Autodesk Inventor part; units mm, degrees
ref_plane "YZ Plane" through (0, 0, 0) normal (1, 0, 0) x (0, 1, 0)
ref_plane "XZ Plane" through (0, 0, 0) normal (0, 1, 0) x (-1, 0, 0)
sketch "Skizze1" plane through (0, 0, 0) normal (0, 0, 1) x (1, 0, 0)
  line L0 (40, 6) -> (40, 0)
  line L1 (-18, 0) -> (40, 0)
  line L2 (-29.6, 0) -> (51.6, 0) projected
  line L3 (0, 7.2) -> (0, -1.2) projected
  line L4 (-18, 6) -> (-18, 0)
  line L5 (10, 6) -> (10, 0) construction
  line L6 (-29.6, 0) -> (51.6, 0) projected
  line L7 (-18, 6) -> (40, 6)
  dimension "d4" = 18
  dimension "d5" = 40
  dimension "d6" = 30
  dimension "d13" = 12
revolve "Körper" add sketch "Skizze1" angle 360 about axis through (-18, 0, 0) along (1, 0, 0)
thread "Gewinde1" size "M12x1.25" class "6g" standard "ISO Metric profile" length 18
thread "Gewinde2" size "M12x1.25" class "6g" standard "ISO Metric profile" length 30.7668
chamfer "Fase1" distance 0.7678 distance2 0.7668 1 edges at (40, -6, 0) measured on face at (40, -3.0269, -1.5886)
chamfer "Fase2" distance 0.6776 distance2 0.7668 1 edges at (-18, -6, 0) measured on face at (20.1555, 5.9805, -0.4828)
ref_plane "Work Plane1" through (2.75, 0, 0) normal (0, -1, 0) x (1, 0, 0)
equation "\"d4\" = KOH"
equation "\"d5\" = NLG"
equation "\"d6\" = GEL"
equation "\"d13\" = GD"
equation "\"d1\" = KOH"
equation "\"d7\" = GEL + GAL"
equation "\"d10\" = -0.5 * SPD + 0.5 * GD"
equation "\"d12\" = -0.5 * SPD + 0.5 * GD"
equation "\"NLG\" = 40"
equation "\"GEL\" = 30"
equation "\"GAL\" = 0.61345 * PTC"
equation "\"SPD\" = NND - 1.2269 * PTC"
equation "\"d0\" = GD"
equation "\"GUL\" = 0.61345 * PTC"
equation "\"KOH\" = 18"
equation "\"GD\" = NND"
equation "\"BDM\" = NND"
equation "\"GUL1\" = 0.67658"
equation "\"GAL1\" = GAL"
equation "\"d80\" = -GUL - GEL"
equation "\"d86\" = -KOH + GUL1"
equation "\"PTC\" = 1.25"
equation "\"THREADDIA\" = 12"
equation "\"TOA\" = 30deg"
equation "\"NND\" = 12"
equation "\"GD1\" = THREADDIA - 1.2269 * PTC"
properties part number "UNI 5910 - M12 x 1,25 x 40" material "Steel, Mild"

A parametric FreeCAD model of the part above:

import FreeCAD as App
import Part
import Sketcher
from FreeCAD import Vector


def edges_at(feature, points):
    """Names of the edges that pass closest to the given points."""
    edges = feature.Shape.Edges
    near = lambda p: min(range(len(edges)), key=lambda i: edges[i].distToShape(Part.Vertex(*p))[0])
    return sorted({f"Edge{near(p) + 1}" for p in points})


def add_polygon(sketch, points):
    """Adds a closed chain of lines whose ends are joined by coincident constraints."""
    first, n = sketch.GeometryCount, len(points)
    for a, b in zip(points, points[1:] + points[:1]):
        sketch.addGeometry(Part.LineSegment(App.Vector(*a, 0), App.Vector(*b, 0)), False)
    for i in range(n):
        sketch.addConstraint(Sketcher.Constraint("Coincident", first + i, 2, first + (i + 1) % n, 1))

doc = App.newDocument("Part")
body = doc.addObject("PartDesign::Body", "Body")

# Sketch on XY plane
sketch1 = body.newObject("Sketcher::SketchObject", "Sketch")
sketch1.AttachmentSupport = (doc.getObject("XY_Plane"), [""])
sketch1.MapMode = "FlatFace"
add_polygon(sketch1, [(40, 0), (40, 6), (-18, 6), (-18, 0)])  # lines 0-3
sketch1.addConstraint(Sketcher.Constraint("Vertical", 0))
sketch1.addConstraint(Sketcher.Constraint("Horizontal", 1))
sketch1.addConstraint(Sketcher.Constraint("Vertical", 2))
sketch1.addConstraint(Sketcher.Constraint("Horizontal", 3))
sketch1.addConstraint(Sketcher.Constraint("PointOnObject", 2, 2, -1))
sketch1.addConstraint(Sketcher.Constraint("DistanceX", -1, 1, 0, 2, 40.0))
sketch1.addConstraint(Sketcher.Constraint("DistanceX", 1, 2, -1, 1, 18.0))
sketch1.addConstraint(Sketcher.Constraint("DistanceY", 0, 1, 0, 2, 6.0))
revolution = body.newObject("PartDesign::Revolution", "Revolution")
revolution.Profile = sketch1
revolution.ReferenceAxis = (sketch1, ["H_Axis"])
revolution.Angle = 360
doc.recompute()

chamfer = body.newObject("PartDesign::Chamfer", "Chamfer")
chamfer.Base = (revolution, edges_at(revolution, [(40, -6, 0)]))
chamfer.ChamferType = "Two distances"
chamfer.Size = 0.7678
chamfer.Size2 = 0.7668
doc.recompute()

chamfer2 = body.newObject("PartDesign::Chamfer", "Chamfer001")
chamfer2.Base = (chamfer, edges_at(chamfer, [(-18, -6, 0)]))
chamfer2.ChamferType = "Two distances"
chamfer2.Size = 0.6776
chamfer2.Size2 = 0.7668

doc.recompute()
